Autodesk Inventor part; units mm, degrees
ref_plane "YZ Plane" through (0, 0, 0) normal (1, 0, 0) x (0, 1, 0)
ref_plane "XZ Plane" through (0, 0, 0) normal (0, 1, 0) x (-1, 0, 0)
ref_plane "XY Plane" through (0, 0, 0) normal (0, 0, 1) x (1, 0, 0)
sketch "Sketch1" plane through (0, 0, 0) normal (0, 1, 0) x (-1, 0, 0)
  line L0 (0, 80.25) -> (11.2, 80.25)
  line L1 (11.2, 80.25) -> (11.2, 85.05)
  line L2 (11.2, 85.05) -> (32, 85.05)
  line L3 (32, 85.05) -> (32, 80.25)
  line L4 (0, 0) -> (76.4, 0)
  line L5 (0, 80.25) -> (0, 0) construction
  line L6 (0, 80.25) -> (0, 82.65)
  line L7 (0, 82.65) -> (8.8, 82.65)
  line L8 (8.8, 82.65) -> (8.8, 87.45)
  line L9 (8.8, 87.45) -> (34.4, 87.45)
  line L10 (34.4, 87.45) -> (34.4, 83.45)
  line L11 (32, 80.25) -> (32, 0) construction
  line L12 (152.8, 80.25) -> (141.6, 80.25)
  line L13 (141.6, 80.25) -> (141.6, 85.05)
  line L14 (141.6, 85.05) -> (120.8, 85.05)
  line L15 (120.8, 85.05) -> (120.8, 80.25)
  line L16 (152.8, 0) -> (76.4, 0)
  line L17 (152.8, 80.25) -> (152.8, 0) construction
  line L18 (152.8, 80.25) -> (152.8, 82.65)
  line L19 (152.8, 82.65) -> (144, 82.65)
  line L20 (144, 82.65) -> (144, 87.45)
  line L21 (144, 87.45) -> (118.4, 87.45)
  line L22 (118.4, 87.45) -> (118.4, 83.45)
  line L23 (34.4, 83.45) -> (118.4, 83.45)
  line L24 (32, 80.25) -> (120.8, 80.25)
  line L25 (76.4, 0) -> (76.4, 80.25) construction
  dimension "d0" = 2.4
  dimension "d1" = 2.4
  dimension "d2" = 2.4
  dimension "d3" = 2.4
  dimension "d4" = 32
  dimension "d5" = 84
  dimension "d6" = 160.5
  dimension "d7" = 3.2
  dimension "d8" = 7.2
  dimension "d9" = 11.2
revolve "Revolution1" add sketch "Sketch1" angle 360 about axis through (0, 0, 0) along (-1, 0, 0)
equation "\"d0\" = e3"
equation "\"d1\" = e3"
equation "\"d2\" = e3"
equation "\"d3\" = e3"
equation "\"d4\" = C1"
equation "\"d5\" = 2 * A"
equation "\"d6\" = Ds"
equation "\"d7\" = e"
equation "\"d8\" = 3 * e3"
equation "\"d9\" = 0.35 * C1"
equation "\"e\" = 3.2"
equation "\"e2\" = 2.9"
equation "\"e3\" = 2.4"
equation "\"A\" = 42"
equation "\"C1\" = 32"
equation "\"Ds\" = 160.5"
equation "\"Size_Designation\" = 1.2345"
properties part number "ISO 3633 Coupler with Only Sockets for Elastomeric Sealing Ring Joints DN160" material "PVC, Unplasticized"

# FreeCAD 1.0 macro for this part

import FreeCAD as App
import Part
import Sketcher
from FreeCAD import Vector
Q = App.Units.Quantity

doc = App.newDocument("Part")
body = doc.addObject("PartDesign::Body", "Body")

sketch1 = body.newObject("Sketcher::SketchObject", "Sketch")
sketch1.AttachmentSupport = (doc.getObject("XZ_Plane"), [""])
sketch1.MapMode = "FlatFace"
sketch1.addGeometry(Part.LineSegment(Vector(0, 82.7, 0), Vector(0, 80.2, 0)), False)
sketch1.addGeometry(Part.LineSegment(Vector(0, 80.2, 0), Vector(-11.2, 80.2, 0)), False)
sketch1.addGeometry(Part.LineSegment(Vector(-11.2, 80.2, 0), Vector(-11.2, 85, 0)), False)
sketch1.addGeometry(Part.LineSegment(Vector(-11.2, 85, 0), Vector(-32, 85, 0)), False)
sketch1.addGeometry(Part.LineSegment(Vector(-32, 85, 0), Vector(-32, 80.2, 0)), False)
sketch1.addGeometry(Part.LineSegment(Vector(-32, 80.2, 0), Vector(-120.8, 80.2, 0)), False)
sketch1.addGeometry(Part.LineSegment(Vector(-120.8, 80.2, 0), Vector(-120.8, 85, 0)), False)
sketch1.addGeometry(Part.LineSegment(Vector(-120.8, 85, 0), Vector(-141.6, 85, 0)), False)
sketch1.addGeometry(Part.LineSegment(Vector(-141.6, 85, 0), Vector(-141.6, 80.2, 0)), False)
sketch1.addGeometry(Part.LineSegment(Vector(-141.6, 80.2, 0), Vector(-152.8, 80.2, 0)), False)
sketch1.addGeometry(Part.LineSegment(Vector(-152.8, 80.2, 0), Vector(-152.8, 82.7, 0)), False)
sketch1.addGeometry(Part.LineSegment(Vector(-152.8, 82.7, 0), Vector(-144, 82.7, 0)), False)
sketch1.addGeometry(Part.LineSegment(Vector(-144, 82.7, 0), Vector(-144, 87.5, 0)), False)
sketch1.addGeometry(Part.LineSegment(Vector(-144, 87.5, 0), Vector(-118.4, 87.5, 0)), False)
sketch1.addGeometry(Part.LineSegment(Vector(-118.4, 87.5, 0), Vector(-118.4, 83.5, 0)), False)
sketch1.addGeometry(Part.LineSegment(Vector(-118.4, 83.5, 0), Vector(-34.4, 83.5, 0)), False)
sketch1.addGeometry(Part.LineSegment(Vector(-34.4, 83.5, 0), Vector(-34.4, 87.5, 0)), False)
sketch1.addGeometry(Part.LineSegment(Vector(-34.4, 87.5, 0), Vector(-8.8, 87.5, 0)), False)
sketch1.addGeometry(Part.LineSegment(Vector(-8.8, 87.5, 0), Vector(-8.8, 82.7, 0)), False)
sketch1.addGeometry(Part.LineSegment(Vector(-8.8, 82.7, 0), Vector(0, 82.7, 0)), False)
sketch1.addConstraint(Sketcher.Constraint("Coincident", 0, 2, 1, 1))
sketch1.addConstraint(Sketcher.Constraint("Coincident", 1, 2, 2, 1))
sketch1.addConstraint(Sketcher.Constraint("Coincident", 2, 2, 3, 1))
sketch1.addConstraint(Sketcher.Constraint("Coincident", 3, 2, 4, 1))
sketch1.addConstraint(Sketcher.Constraint("Coincident", 4, 2, 5, 1))
sketch1.addConstraint(Sketcher.Constraint("Coincident", 5, 2, 6, 1))
sketch1.addConstraint(Sketcher.Constraint("Coincident", 6, 2, 7, 1))
sketch1.addConstraint(Sketcher.Constraint("Coincident", 7, 2, 8, 1))
sketch1.addConstraint(Sketcher.Constraint("Coincident", 8, 2, 9, 1))
sketch1.addConstraint(Sketcher.Constraint("Coincident", 9, 2, 10, 1))
sketch1.addConstraint(Sketcher.Constraint("Coincident", 10, 2, 11, 1))
sketch1.addConstraint(Sketcher.Constraint("Coincident", 11, 2, 12, 1))
sketch1.addConstraint(Sketcher.Constraint("Coincident", 12, 2, 13, 1))
sketch1.addConstraint(Sketcher.Constraint("Coincident", 13, 2, 14, 1))
sketch1.addConstraint(Sketcher.Constraint("Coincident", 14, 2, 15, 1))
sketch1.addConstraint(Sketcher.Constraint("Coincident", 15, 2, 16, 1))
sketch1.addConstraint(Sketcher.Constraint("Coincident", 16, 2, 17, 1))
sketch1.addConstraint(Sketcher.Constraint("Coincident", 17, 2, 18, 1))
sketch1.addConstraint(Sketcher.Constraint("Coincident", 18, 2, 19, 1))
sketch1.addConstraint(Sketcher.Constraint("Coincident", 19, 2, 0, 1))
sketch1.addConstraint(Sketcher.Constraint("Vertical", 0))
sketch1.addConstraint(Sketcher.Constraint("Horizontal", 1))
sketch1.addConstraint(Sketcher.Constraint("Vertical", 2))
sketch1.addConstraint(Sketcher.Constraint("Horizontal", 3))
sketch1.addConstraint(Sketcher.Constraint("Vertical", 4))
sketch1.addConstraint(Sketcher.Constraint("Horizontal", 5))
sketch1.addConstraint(Sketcher.Constraint("Vertical", 6))
sketch1.addConstraint(Sketcher.Constraint("Horizontal", 7))
sketch1.addConstraint(Sketcher.Constraint("Vertical", 8))
sketch1.addConstraint(Sketcher.Constraint("Horizontal", 9))
sketch1.addConstraint(Sketcher.Constraint("Vertical", 10))
sketch1.addConstraint(Sketcher.Constraint("Horizontal", 11))
sketch1.addConstraint(Sketcher.Constraint("Vertical", 12))
sketch1.addConstraint(Sketcher.Constraint("Horizontal", 13))
sketch1.addConstraint(Sketcher.Constraint("Vertical", 14))
sketch1.addConstraint(Sketcher.Constraint("Horizontal", 15))
sketch1.addConstraint(Sketcher.Constraint("Vertical", 16))
sketch1.addConstraint(Sketcher.Constraint("Horizontal", 17))
sketch1.addConstraint(Sketcher.Constraint("Vertical", 18))
sketch1.addConstraint(Sketcher.Constraint("Horizontal", 19))
sketch1.addConstraint(Sketcher.Constraint("PointOnObject", 0, 2, -2))
sketch1.addConstraint(Sketcher.Constraint("Horizontal", 1, 2, 4, 2))
sketch1.addConstraint(Sketcher.Constraint("Horizontal", 3, 2, 6, 2))
sketch1.addConstraint(Sketcher.Constraint("Horizontal", 5, 2, 8, 2))
sketch1.addConstraint(Sketcher.Constraint("Horizontal", 13, 2, 16, 2))
sketch1.addConstraint(Sketcher.Constraint("Horizontal", 11, 2, 18, 2))
sketch1.addConstraint(Sketcher.Constraint("Equal", 3, 7))
sketch1.addConstraint(Sketcher.Constraint("Equal", 1, 9))
sketch1.addConstraint(Sketcher.Constraint("Equal", 13, 17))
sketch1.addConstraint(Sketcher.Constraint("Equal", 11, 19))
sketch1.addConstraint(Sketcher.Constraint("Equal", 8, 12))
sketch1.addConstraint(Sketcher.Constraint("DistanceX", 15, 1, 15, 2, Q("84 mm")))
sketch1.addConstraint(Sketcher.Constraint("DistanceX", 1, 2, 1, 1, Q("11.2 mm")))
sketch1.addConstraint(Sketcher.Constraint("DistanceY", 0, 2, 0, 1, Q("2.4 mm")))
sketch1.addConstraint(Sketcher.Constraint("DistanceX", 3, 2, -1, 1, Q("32 mm")))
sketch1.addConstraint(Sketcher.Constraint("DistanceY", 10, 2, 7, 2, Q("2.4 mm")))
sketch1.addConstraint(Sketcher.Constraint("DistanceX", 11, 2, 7, 2, Q("2.4 mm")))
sketch1.addConstraint(Sketcher.Constraint("DistanceX", 6, 2, 13, 2, Q("2.4 mm")))
sketch1.addConstraint(Sketcher.Constraint("DistanceY", 5, 2, 14, 2, Q("3.2 mm")))
sketch1.addConstraint(Sketcher.Constraint("DistanceY", -1, 1, 0, 2, Q("80.25 mm")))
revolution = body.newObject("PartDesign::Revolution", "Revolution")
revolution.Profile = sketch1
revolution.ReferenceAxis = (sketch1, ["H_Axis"])
revolution.Angle = 360

doc.recompute()
